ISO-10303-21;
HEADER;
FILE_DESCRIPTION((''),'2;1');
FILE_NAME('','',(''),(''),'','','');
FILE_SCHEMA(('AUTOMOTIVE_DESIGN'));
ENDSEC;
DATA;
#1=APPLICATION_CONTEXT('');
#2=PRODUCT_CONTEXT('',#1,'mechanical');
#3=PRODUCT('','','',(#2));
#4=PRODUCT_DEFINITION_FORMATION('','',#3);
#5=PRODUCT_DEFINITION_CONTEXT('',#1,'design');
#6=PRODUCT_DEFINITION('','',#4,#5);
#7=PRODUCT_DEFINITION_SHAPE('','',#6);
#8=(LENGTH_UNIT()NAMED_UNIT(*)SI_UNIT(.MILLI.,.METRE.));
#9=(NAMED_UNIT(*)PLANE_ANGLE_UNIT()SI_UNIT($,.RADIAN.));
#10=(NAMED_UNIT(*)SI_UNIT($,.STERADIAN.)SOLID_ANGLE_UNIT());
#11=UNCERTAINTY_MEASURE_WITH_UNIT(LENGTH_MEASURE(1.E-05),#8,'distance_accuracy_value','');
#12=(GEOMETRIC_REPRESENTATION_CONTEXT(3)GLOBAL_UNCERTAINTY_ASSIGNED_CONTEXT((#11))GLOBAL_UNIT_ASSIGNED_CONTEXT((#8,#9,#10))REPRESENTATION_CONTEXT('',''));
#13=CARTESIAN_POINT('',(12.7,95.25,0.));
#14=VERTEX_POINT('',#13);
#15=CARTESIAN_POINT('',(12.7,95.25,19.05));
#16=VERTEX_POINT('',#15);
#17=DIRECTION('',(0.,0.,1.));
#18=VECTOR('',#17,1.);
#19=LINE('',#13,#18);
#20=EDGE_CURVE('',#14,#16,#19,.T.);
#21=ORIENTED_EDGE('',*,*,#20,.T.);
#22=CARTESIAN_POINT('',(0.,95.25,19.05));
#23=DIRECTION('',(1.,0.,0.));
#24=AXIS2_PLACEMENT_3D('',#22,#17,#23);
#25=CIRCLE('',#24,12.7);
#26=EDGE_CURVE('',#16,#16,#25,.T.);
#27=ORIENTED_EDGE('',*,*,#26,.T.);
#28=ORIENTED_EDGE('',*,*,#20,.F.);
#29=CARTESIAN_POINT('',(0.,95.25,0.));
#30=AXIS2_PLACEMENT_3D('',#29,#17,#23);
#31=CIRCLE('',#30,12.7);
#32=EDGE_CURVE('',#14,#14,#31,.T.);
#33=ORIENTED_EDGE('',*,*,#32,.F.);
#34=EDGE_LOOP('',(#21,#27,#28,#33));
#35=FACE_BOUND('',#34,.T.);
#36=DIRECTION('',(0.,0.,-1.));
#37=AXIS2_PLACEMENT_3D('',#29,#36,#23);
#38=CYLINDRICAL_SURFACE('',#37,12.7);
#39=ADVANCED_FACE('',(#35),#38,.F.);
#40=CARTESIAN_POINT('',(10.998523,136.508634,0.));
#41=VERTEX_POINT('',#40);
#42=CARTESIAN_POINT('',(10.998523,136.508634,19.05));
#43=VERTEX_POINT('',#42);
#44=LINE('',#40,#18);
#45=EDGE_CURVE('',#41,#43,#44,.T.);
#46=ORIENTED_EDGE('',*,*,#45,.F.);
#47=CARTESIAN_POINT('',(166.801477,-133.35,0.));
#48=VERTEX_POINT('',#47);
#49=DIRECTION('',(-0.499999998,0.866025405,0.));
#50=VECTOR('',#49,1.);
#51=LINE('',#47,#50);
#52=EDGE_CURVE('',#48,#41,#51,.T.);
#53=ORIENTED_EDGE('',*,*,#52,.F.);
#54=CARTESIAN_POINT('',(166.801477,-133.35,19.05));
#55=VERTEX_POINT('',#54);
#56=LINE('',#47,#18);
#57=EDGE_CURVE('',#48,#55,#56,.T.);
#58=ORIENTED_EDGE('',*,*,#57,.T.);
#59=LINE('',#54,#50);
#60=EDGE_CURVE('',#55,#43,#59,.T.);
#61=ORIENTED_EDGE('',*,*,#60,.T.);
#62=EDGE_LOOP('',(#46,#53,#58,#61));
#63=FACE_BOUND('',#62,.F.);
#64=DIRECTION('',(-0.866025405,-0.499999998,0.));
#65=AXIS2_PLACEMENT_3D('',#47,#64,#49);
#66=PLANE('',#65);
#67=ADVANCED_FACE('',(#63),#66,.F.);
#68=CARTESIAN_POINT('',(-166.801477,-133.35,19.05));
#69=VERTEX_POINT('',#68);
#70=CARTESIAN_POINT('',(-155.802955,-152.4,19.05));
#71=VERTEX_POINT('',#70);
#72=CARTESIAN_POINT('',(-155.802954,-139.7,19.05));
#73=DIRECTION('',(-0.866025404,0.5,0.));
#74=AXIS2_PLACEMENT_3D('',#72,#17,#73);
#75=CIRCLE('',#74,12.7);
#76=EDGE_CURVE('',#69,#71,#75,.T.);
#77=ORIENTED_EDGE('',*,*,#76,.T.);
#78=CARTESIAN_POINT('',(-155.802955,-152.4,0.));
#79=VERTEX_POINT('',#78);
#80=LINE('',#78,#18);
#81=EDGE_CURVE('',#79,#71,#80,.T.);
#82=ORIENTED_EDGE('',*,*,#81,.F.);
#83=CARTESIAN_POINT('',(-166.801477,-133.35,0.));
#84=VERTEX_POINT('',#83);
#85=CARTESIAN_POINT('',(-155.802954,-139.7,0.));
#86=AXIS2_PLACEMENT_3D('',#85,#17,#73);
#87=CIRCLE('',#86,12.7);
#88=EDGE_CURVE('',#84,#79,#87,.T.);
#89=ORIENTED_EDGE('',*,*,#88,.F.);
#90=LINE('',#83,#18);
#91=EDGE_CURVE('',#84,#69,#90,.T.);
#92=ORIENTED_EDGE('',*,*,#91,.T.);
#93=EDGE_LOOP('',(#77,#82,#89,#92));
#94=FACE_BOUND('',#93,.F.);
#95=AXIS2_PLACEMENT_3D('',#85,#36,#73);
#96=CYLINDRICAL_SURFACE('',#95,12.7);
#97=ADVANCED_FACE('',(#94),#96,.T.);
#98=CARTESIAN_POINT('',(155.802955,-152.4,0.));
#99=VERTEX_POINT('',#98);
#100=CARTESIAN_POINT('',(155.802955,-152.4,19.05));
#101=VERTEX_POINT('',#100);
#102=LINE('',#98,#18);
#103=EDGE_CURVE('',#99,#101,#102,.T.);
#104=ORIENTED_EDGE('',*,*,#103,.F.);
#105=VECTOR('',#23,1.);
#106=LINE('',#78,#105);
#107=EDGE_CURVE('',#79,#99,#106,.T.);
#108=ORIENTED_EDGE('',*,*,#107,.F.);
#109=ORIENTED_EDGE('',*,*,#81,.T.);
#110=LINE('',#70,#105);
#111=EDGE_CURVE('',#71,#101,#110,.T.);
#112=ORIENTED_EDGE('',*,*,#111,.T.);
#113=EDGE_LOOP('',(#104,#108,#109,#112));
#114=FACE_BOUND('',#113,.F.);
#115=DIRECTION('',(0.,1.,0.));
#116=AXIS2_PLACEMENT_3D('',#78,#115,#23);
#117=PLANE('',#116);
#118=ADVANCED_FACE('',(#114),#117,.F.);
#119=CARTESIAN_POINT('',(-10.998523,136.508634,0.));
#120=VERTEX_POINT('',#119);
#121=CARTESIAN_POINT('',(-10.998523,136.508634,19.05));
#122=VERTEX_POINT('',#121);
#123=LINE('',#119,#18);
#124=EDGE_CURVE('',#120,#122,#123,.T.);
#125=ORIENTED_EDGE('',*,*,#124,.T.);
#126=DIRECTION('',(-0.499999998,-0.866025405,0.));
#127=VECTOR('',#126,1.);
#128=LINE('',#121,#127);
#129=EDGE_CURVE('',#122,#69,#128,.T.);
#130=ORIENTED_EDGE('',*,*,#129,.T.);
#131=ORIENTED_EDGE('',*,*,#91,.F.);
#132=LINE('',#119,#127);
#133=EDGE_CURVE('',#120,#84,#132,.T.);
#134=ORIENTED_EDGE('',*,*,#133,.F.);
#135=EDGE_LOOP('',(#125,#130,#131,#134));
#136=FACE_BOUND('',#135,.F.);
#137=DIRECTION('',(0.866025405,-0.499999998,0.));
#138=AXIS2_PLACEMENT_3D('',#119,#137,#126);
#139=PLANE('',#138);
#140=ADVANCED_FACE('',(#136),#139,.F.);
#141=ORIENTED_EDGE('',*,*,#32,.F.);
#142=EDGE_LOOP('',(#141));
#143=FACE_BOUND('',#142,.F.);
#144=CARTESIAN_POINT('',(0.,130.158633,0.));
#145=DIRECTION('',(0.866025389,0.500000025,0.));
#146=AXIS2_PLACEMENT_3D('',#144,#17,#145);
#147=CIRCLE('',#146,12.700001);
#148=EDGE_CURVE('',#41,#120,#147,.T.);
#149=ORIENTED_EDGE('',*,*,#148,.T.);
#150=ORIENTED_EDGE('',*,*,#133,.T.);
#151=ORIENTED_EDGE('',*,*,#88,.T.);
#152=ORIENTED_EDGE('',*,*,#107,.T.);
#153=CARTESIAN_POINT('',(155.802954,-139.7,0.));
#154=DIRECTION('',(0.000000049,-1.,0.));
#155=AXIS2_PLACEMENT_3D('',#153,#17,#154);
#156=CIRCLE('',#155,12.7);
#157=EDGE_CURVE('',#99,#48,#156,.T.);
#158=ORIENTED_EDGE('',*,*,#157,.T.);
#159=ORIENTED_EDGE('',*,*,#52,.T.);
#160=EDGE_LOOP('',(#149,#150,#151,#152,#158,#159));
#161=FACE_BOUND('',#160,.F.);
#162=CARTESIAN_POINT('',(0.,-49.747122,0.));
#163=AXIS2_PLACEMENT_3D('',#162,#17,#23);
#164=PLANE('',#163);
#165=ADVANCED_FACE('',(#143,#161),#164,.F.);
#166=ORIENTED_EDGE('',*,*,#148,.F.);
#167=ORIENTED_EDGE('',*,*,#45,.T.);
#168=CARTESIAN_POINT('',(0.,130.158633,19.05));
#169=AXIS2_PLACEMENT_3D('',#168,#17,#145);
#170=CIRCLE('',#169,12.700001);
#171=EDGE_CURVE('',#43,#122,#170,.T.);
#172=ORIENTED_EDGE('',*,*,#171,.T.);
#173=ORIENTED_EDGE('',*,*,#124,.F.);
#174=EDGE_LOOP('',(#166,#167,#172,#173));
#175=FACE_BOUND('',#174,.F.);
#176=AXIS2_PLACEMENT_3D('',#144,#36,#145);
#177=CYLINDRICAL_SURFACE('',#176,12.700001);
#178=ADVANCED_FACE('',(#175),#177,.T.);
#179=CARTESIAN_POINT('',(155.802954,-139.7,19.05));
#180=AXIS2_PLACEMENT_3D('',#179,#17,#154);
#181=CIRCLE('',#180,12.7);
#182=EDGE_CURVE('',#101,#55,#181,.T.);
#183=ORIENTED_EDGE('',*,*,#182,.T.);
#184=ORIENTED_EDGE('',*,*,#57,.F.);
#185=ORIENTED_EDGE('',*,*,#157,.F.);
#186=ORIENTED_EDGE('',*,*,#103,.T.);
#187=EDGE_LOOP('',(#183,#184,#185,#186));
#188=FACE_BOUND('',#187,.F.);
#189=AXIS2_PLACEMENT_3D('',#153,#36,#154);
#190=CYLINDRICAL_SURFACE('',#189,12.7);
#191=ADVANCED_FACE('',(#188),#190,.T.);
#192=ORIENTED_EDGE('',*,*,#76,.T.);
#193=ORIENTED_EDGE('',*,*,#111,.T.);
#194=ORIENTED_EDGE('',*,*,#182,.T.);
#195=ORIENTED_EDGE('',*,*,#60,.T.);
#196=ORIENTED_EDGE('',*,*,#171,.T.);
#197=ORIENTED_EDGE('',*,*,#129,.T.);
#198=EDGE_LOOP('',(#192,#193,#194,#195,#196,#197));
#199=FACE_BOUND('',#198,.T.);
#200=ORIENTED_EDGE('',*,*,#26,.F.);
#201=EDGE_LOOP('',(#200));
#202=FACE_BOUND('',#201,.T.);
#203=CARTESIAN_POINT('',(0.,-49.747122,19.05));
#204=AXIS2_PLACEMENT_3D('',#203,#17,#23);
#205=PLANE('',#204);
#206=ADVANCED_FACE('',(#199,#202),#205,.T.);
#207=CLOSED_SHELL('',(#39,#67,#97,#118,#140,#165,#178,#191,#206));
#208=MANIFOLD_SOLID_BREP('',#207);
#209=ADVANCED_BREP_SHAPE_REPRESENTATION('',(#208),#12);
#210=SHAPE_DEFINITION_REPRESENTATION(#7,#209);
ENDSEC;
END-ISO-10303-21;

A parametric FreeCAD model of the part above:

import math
import FreeCAD as App
import Part
import Sketcher

V = App.Vector
Q = App.Units.Quantity

doc = App.newDocument("Part")
body = doc.addObject("PartDesign::Body", "Body")

sketch1 = body.newObject("Sketcher::SketchObject", "Sketch")
sketch1.AttachmentSupport = (doc.getObject("XY_Plane"), [""])
sketch1.MapMode = "FlatFace"
sketch1.addGeometry(Part.ArcOfCircle(Part.Circle(V(-156, -140, 0), V(0, 0, 1), 13), math.radians(150), math.radians(270)), False)
sketch1.addGeometry(Part.LineSegment(V(-156, -152, 0), V(156, -152, 0)), False)
sketch1.addGeometry(Part.ArcOfCircle(Part.Circle(V(156, -140, 0), V(0, 0, 1), 13), math.radians(-90), math.radians(30)), False)
sketch1.addGeometry(Part.LineSegment(V(167, -133, 0), V(11, 137, 0)), False)
sketch1.addGeometry(Part.ArcOfCircle(Part.Circle(V(0, 130, 0), V(0, 0, 1), 13), math.radians(30), math.radians(150)), False)
sketch1.addGeometry(Part.LineSegment(V(-11, 137, 0), V(-167, -133, 0)), False)
sketch1.addGeometry(Part.Circle(V(0, 95, 0), V(0, 0, 1), 13), False)
sketch1.addConstraint(Sketcher.Constraint("Tangent", 0, 2, 1, 1))
sketch1.addConstraint(Sketcher.Constraint("Tangent", 1, 2, 2, 1))
sketch1.addConstraint(Sketcher.Constraint("Tangent", 2, 2, 3, 1))
sketch1.addConstraint(Sketcher.Constraint("Tangent", 3, 2, 4, 1))
sketch1.addConstraint(Sketcher.Constraint("Tangent", 4, 2, 5, 1))
sketch1.addConstraint(Sketcher.Constraint("Tangent", 5, 2, 0, 1))
sketch1.addConstraint(Sketcher.Constraint("Horizontal", 1))
sketch1.addConstraint(Sketcher.Constraint("Equal", 0, 2))
sketch1.addConstraint(Sketcher.Constraint("Equal", 2, 4))
sketch1.addConstraint(Sketcher.Constraint("Equal", 4, 6))
sketch1.addConstraint(Sketcher.Constraint("Symmetric", 3, 2, 4, 2, -2))
sketch1.addConstraint(Sketcher.Constraint("PointOnObject", 6, 3, -2))
sketch1.addConstraint(Sketcher.Constraint("Diameter", 6, Q("1 in")))
sketch1.addConstraint(Sketcher.Constraint("DistanceY", 0, 2, -1, 1, Q("6 in")))
sketch1.addConstraint(Sketcher.Constraint("Angle", 3, Q("120 deg")))
sketch1.addConstraint(Sketcher.Constraint("DistanceY", 2, 2, 6, 3, Q("9 in")))
sketch1.addConstraint(Sketcher.Constraint("DistanceX", 1, 1, 1, 2, Q("311.60591 mm")))
pad1 = body.newObject("PartDesign::Pad", "Pad")
pad1.Profile = sketch1
pad1.Length = Q("0.75 in")

doc.recompute()
